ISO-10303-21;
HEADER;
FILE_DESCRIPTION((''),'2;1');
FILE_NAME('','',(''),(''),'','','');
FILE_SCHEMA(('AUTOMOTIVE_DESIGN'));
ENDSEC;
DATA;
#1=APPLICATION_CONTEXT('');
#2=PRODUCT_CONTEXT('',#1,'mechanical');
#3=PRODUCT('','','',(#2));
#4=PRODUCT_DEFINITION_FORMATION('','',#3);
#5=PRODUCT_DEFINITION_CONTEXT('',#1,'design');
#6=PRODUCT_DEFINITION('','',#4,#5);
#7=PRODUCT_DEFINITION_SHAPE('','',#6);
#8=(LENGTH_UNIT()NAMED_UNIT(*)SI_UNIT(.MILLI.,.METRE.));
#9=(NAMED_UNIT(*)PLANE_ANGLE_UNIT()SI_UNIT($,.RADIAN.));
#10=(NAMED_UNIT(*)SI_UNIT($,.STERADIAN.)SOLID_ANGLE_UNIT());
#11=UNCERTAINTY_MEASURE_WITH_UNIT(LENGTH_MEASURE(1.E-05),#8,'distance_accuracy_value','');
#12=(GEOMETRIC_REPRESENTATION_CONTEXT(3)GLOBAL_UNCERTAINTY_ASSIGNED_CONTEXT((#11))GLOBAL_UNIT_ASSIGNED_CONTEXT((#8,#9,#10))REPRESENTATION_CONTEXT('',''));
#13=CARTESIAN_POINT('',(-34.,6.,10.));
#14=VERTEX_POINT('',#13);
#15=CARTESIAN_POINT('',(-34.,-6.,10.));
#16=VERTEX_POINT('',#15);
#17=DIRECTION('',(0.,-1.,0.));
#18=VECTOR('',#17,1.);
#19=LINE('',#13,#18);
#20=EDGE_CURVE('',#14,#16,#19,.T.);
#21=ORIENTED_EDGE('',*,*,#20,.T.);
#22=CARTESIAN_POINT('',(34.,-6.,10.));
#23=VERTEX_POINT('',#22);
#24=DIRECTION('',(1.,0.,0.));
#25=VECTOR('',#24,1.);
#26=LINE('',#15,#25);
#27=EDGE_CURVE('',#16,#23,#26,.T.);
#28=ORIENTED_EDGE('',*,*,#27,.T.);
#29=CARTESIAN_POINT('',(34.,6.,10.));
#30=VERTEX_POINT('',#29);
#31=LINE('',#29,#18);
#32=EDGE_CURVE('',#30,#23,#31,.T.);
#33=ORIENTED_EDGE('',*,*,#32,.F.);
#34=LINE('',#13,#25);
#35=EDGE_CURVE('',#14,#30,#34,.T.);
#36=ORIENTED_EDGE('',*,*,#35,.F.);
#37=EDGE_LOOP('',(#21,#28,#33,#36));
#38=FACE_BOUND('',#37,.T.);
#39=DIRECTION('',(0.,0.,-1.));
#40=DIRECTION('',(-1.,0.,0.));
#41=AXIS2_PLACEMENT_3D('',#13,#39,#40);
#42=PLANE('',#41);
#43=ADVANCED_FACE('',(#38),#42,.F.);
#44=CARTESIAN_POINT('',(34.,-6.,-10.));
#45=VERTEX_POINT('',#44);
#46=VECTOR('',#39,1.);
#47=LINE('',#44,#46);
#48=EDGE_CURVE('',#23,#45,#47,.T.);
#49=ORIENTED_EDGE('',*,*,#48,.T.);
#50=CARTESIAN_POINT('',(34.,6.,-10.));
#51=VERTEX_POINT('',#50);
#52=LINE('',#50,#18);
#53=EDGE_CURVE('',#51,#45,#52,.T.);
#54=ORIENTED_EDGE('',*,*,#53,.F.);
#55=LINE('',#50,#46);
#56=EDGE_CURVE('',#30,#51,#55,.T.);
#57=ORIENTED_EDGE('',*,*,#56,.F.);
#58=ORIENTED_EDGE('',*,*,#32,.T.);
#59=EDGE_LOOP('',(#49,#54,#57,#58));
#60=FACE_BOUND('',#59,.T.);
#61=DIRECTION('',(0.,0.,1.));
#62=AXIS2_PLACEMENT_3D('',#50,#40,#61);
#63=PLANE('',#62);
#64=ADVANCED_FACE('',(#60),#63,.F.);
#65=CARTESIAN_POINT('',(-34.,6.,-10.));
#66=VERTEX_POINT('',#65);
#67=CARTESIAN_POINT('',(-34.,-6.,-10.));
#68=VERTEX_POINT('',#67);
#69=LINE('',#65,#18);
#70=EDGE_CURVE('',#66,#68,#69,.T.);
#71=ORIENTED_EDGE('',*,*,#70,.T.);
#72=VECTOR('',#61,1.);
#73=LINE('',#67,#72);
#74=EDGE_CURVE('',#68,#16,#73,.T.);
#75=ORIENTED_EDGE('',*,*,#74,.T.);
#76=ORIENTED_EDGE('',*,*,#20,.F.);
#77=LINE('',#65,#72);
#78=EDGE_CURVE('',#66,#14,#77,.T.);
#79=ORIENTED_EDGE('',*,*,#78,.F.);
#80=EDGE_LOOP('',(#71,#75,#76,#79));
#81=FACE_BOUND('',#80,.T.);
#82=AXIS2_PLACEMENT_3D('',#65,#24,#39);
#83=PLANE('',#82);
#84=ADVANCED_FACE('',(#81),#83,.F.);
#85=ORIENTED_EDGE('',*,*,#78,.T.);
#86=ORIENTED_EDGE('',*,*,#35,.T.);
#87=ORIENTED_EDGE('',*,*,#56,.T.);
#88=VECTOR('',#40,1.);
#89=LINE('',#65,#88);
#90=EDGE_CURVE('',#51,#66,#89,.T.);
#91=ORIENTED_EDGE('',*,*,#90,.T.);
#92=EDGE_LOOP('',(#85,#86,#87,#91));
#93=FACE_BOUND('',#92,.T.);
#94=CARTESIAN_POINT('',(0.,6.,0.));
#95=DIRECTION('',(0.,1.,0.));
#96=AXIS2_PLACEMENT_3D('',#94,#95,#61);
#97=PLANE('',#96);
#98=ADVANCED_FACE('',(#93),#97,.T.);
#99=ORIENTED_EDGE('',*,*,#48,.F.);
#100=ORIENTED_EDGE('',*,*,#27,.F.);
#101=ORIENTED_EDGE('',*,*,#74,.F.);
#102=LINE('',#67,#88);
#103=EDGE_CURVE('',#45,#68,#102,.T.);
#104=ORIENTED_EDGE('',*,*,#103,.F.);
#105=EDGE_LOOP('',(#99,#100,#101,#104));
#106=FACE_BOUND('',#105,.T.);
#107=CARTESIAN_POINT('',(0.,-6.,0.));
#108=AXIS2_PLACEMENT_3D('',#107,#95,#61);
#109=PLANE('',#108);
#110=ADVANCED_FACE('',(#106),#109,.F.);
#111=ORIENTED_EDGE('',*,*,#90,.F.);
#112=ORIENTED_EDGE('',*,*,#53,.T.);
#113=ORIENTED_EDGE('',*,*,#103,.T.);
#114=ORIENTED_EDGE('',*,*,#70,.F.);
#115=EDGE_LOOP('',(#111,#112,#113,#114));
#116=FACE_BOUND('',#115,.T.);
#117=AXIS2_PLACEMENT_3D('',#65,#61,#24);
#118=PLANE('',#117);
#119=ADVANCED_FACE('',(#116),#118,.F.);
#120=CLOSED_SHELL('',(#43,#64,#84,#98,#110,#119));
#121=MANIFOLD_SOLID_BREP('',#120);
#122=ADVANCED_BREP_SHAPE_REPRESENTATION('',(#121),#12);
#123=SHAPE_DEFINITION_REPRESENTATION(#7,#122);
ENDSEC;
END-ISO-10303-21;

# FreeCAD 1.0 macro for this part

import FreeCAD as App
import Part
import Sketcher


def add_polygon(sketch, points):
    """Adds a closed chain of lines whose ends are joined by coincident constraints."""
    first, n = sketch.GeometryCount, len(points)
    for a, b in zip(points, points[1:] + points[:1]):
        sketch.addGeometry(Part.LineSegment(App.Vector(*a, 0), App.Vector(*b, 0)), False)
    for i in range(n):
        sketch.addConstraint(Sketcher.Constraint("Coincident", first + i, 2, first + (i + 1) % n, 1))

doc = App.newDocument("Part")
body = doc.addObject("PartDesign::Body", "Body")

# Sketch on XZ plane
sketch1 = doc.addObject("Sketcher::SketchObject", "Sketch")
body.addObject(sketch1)
sketch1.AttachmentSupport = (doc.XZ_Plane, [""])
sketch1.MapMode = "FlatFace"
add_polygon(sketch1, [(-34, -10), (-34, 10), (34, 10), (34, -10)])  # lines 0-3
sketch1.addConstraint([
    Sketcher.Constraint("Vertical", 0),
    Sketcher.Constraint("Horizontal", 1),
    Sketcher.Constraint("Vertical", 2),
    Sketcher.Constraint("Horizontal", 3),
    Sketcher.Constraint("Symmetric", 0, 2, 2, 2, -1, 1),
    Sketcher.Constraint("DistanceX", 1, 1, 1, 2, 68.0),
    Sketcher.Constraint("DistanceY", 0, 1, 0, 2, 20.0),
])
pad1 = doc.addObject("PartDesign::Pad", "Pad")
body.addObject(pad1)
pad1.Profile = sketch1
pad1.Length = 12
pad1.Midplane = True

doc.recompute()
